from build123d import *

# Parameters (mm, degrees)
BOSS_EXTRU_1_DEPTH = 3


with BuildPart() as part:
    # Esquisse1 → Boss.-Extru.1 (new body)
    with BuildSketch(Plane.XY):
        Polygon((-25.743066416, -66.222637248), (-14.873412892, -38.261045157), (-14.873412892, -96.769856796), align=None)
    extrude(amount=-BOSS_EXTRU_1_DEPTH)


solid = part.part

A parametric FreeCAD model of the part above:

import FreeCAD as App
import Part
import Sketcher
Q = App.Units.Quantity

doc = App.newDocument("Part")
body = doc.addObject("PartDesign::Body", "Body")

# Sketch on XY plane
sketch1 = body.newObject("Sketcher::SketchObject", "Sketch")
sketch1.AttachmentSupport = (doc.getObject("XY_Plane"), [""])
sketch1.MapMode = "FlatFace"
sketch1.addGeometry([
    Part.LineSegment(App.Vector(-15, -38, 0), App.Vector(-26, -66, 0)),
    Part.LineSegment(App.Vector(-26, -66, 0), App.Vector(-15, -97, 0)),
    Part.LineSegment(App.Vector(-15, -97, 0), App.Vector(-15, -38, 0)),
], False)
sketch1.addConstraint([
    Sketcher.Constraint("Coincident", 0, 2, 1, 1),
    Sketcher.Constraint("Coincident", 1, 2, 2, 1),
    Sketcher.Constraint("Coincident", 2, 2, 0, 1),
    Sketcher.Constraint("Vertical", 2),
    Sketcher.Constraint("Distance", 0, Q("30 mm")),
    Sketcher.Constraint("DistanceY", 2, 1, 2, 2, Q("58.508812 mm")),
    Sketcher.Constraint("Distance", 1, Q("32.423479 mm")),
    Sketcher.Constraint("DistanceX", 0, 2, -1, 1, Q("25.743066 mm")),
    Sketcher.Constraint("DistanceY", 0, 2, -1, 1, Q("66.222637 mm")),
])
pad1 = body.newObject("PartDesign::Pad", "Pad")
pad1.Profile = sketch1
pad1.Length = 3
pad1.Reversed = True

doc.recompute()
